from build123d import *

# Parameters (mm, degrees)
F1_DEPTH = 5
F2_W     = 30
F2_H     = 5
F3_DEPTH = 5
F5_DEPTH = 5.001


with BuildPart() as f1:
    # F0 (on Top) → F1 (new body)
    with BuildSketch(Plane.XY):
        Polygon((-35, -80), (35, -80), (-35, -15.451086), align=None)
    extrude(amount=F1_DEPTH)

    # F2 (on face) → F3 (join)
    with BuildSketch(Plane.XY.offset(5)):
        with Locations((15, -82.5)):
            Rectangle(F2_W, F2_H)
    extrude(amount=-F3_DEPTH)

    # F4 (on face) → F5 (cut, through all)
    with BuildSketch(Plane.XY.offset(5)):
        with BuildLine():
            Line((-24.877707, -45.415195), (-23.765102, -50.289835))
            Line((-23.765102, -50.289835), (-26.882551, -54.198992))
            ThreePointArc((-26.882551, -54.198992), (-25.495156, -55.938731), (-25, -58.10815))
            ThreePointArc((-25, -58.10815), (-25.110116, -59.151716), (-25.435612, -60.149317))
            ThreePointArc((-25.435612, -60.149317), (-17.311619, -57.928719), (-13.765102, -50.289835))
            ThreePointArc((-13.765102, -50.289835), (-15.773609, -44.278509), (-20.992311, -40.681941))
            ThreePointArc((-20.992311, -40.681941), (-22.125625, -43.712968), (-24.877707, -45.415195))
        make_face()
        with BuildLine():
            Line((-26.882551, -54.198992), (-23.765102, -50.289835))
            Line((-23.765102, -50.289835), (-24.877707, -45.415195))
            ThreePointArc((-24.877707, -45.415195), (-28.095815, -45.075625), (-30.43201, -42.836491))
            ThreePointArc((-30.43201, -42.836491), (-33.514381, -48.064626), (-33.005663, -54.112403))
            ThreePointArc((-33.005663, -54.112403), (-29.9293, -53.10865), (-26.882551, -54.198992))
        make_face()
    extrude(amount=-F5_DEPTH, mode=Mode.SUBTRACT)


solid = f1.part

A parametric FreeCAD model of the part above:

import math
import FreeCAD as App
import Part
import Sketcher
from FreeCAD import Vector
Q = App.Units.Quantity

doc = App.newDocument("Part")
body = doc.addObject("PartDesign::Body", "Body")

# Sketch on XY plane
sketch1 = doc.addObject("Sketcher::SketchObject", "Sketch")
body.addObject(sketch1)
sketch1.AttachmentSupport = (doc.XY_Plane, [""])
sketch1.MapMode = "FlatFace"
sketch1.addGeometry(Part.LineSegment(Vector(-35, -80, 0), Vector(35, -80, 0)), False)
sketch1.addGeometry(Part.LineSegment(Vector(35, -80, 0), Vector(-35, -15, 0)), False)
sketch1.addGeometry(Part.LineSegment(Vector(-35, -15, 0), Vector(-35, -80, 0)), False)
sketch1.addConstraint(Sketcher.Constraint("Coincident", 0, 2, 1, 1))
sketch1.addConstraint(Sketcher.Constraint("Coincident", 1, 2, 2, 1))
sketch1.addConstraint(Sketcher.Constraint("Coincident", 2, 2, 0, 1))
sketch1.addConstraint(Sketcher.Constraint("Horizontal", 0))
sketch1.addConstraint(Sketcher.Constraint("Vertical", 2))
sketch1.addConstraint(Sketcher.Constraint("DistanceX", 0, 1, 0, 2, 70.0))
sketch1.addConstraint(Sketcher.Constraint("DistanceX", -1, 1, 0, 2, 35.0))
sketch1.addConstraint(Sketcher.Constraint("DistanceY", 0, 2, -1, 1, 80.0))
sketch1.addConstraint(Sketcher.Constraint("Angle", 1, Q("137.32 deg")))
pad1 = doc.addObject("PartDesign::Pad", "Pad")
body.addObject(pad1)
pad1.Profile = sketch1
pad1.Length = 5

# Sketch on XY plane
sketch2 = doc.addObject("Sketcher::SketchObject", "Sketch001")
body.addObject(sketch2)
sketch2.AttachmentSupport = (doc.XY_Plane, [""])
sketch2.MapMode = "FlatFace"
sketch2.AttachmentOffset = App.Placement(Vector(0, 0, 5), App.Rotation())
sketch2.addGeometry(Part.LineSegment(Vector(0, -80, 0), Vector(0, -85, 0)), False)
sketch2.addGeometry(Part.LineSegment(Vector(0, -85, 0), Vector(30, -85, 0)), False)
sketch2.addGeometry(Part.LineSegment(Vector(30, -85, 0), Vector(30, -80, 0)), False)
sketch2.addGeometry(Part.LineSegment(Vector(30, -80, 0), Vector(0, -80, 0)), False)
sketch2.addConstraint(Sketcher.Constraint("Coincident", 0, 2, 1, 1))
sketch2.addConstraint(Sketcher.Constraint("Coincident", 1, 2, 2, 1))
sketch2.addConstraint(Sketcher.Constraint("Coincident", 2, 2, 3, 1))
sketch2.addConstraint(Sketcher.Constraint("Coincident", 3, 2, 0, 1))
sketch2.addConstraint(Sketcher.Constraint("Vertical", 0))
sketch2.addConstraint(Sketcher.Constraint("Horizontal", 1))
sketch2.addConstraint(Sketcher.Constraint("Vertical", 2))
sketch2.addConstraint(Sketcher.Constraint("Horizontal", 3))
sketch2.addConstraint(Sketcher.Constraint("PointOnObject", 0, 2, -2))
sketch2.addConstraint(Sketcher.Constraint("DistanceX", 1, 1, 1, 2, 30.0))
sketch2.addConstraint(Sketcher.Constraint("DistanceY", 0, 2, 0, 1, 5.0))
sketch2.addConstraint(Sketcher.Constraint("DistanceY", 0, 2, -1, 1, 85.0))
pad2 = doc.addObject("PartDesign::Pad", "Pad001")
body.addObject(pad2)
pad2.Profile = sketch2
pad2.Length = 5
pad2.Reversed = True

# Sketch on XY plane
sketch3 = doc.addObject("Sketcher::SketchObject", "Sketch002")
body.addObject(sketch3)
sketch3.AttachmentSupport = (doc.XY_Plane, [""])
sketch3.MapMode = "FlatFace"
sketch3.AttachmentOffset = App.Placement(Vector(0, 0, 5), App.Rotation())
sketch3.addGeometry(Part.ArcOfCircle(Part.Circle(Vector(-30, -58.1, 0), Vector(0, 0, 1), 5), math.radians(0), math.radians(51)), False)
sketch3.addGeometry(Part.ArcOfCircle(Part.Circle(Vector(-30, -58.1, 0), Vector(0, 0, 1), 5), math.radians(-24), math.radians(0)), False)
sketch3.addGeometry(Part.ArcOfCircle(Part.Circle(Vector(-23.8, -50.3, 0), Vector(0, 0, 1), 10), math.radians(-100), math.radians(0)), False)
sketch3.addGeometry(Part.ArcOfCircle(Part.Circle(Vector(-23.8, -50.3, 0), Vector(0, 0, 1), 10), math.radians(0), math.radians(74)), False)
sketch3.addGeometry(Part.ArcOfCircle(Part.Circle(Vector(-26, -40.5, 0), Vector(0, 0, 1), 5), math.radians(-77), math.radians(-2)), False)
sketch3.addGeometry(Part.ArcOfCircle(Part.Circle(Vector(-26, -40.5, 0), Vector(0, 0, 1), 5), math.radians(-153), math.radians(-77)), False)
sketch3.addGeometry(Part.ArcOfCircle(Part.Circle(Vector(-23.8, -50.3, 0), Vector(0, 0, 1), 10), math.radians(132), math.radians(202)), False)
sketch3.addGeometry(Part.ArcOfCircle(Part.Circle(Vector(-30, -58.1, 0), Vector(0, 0, 1), 5), math.radians(51), math.radians(127)), False)
sketch3.addConstraint(Sketcher.Constraint("Tangent", 0, 1, 1, 2))
sketch3.addConstraint(Sketcher.Constraint("Coincident", 1, 1, 2, 1))
sketch3.addConstraint(Sketcher.Constraint("Tangent", 2, 2, 3, 1))
sketch3.addConstraint(Sketcher.Constraint("Coincident", 3, 2, 4, 2))
sketch3.addConstraint(Sketcher.Constraint("Tangent", 4, 1, 5, 2))
sketch3.addConstraint(Sketcher.Constraint("Coincident", 5, 1, 6, 1))
sketch3.addConstraint(Sketcher.Constraint("Coincident", 6, 2, 7, 2))
sketch3.addConstraint(Sketcher.Constraint("Tangent", 7, 1, 0, 2))
sketch3.addConstraint(Sketcher.Constraint("Coincident", 6, 3, 2, 3))
sketch3.addConstraint(Sketcher.Constraint("Equal", 2, 3))
sketch3.addConstraint(Sketcher.Constraint("Equal", 3, 6))
sketch3.addConstraint(Sketcher.Constraint("Equal", 5, 7))
sketch3.addConstraint(Sketcher.Constraint("Horizontal", 6, 3, 2, 2))
sketch3.addConstraint(Sketcher.Constraint("Radius", 2, 10.0))
sketch3.addConstraint(Sketcher.Constraint("Radius", 4, 4.999998))
sketch3.addConstraint(Sketcher.Constraint("Radius", 5, 5.000001))
sketch3.addConstraint(Sketcher.Constraint("DistanceX", 7, 3, -1, 1, 30.0))
sketch3.addConstraint(Sketcher.Constraint("DistanceX", 0, 1, -1, 1, 25.0))
sketch3.addConstraint(Sketcher.Constraint("Radius", 1, 5.000021))
sketch3.addConstraint(Sketcher.Constraint("DistanceX", 4, 3, 3, 2, 4.997999))
sketch3.addConstraint(Sketcher.Constraint("DistanceX", 2, 3, -1, 1, 23.765102))
sketch3.addConstraint(Sketcher.Constraint("DistanceX", 5, 1, 5, 3, 4.441698))
sketch3.addConstraint(Sketcher.Constraint("DistanceY", 0, 3, -1, 1, 58.108151))
sketch3.addConstraint(Sketcher.Constraint("DistanceY", 0, 1, -1, 1, 58.10815))
sketch3.addConstraint(Sketcher.Constraint("DistanceY", 3, 2, -1, 1, 40.681941))
sketch3.addConstraint(Sketcher.Constraint("DistanceX", 7, 1, -1, 1, 26.882551))
sketch3.addConstraint(Sketcher.Constraint("DistanceY", 4, 1, 4, 3, 4.874638))
pocket1 = doc.addObject("PartDesign::Pocket", "Pocket")
body.addObject(pocket1)
pocket1.Profile = sketch3
pocket1.Type = "ThroughAll"

doc.recompute()
